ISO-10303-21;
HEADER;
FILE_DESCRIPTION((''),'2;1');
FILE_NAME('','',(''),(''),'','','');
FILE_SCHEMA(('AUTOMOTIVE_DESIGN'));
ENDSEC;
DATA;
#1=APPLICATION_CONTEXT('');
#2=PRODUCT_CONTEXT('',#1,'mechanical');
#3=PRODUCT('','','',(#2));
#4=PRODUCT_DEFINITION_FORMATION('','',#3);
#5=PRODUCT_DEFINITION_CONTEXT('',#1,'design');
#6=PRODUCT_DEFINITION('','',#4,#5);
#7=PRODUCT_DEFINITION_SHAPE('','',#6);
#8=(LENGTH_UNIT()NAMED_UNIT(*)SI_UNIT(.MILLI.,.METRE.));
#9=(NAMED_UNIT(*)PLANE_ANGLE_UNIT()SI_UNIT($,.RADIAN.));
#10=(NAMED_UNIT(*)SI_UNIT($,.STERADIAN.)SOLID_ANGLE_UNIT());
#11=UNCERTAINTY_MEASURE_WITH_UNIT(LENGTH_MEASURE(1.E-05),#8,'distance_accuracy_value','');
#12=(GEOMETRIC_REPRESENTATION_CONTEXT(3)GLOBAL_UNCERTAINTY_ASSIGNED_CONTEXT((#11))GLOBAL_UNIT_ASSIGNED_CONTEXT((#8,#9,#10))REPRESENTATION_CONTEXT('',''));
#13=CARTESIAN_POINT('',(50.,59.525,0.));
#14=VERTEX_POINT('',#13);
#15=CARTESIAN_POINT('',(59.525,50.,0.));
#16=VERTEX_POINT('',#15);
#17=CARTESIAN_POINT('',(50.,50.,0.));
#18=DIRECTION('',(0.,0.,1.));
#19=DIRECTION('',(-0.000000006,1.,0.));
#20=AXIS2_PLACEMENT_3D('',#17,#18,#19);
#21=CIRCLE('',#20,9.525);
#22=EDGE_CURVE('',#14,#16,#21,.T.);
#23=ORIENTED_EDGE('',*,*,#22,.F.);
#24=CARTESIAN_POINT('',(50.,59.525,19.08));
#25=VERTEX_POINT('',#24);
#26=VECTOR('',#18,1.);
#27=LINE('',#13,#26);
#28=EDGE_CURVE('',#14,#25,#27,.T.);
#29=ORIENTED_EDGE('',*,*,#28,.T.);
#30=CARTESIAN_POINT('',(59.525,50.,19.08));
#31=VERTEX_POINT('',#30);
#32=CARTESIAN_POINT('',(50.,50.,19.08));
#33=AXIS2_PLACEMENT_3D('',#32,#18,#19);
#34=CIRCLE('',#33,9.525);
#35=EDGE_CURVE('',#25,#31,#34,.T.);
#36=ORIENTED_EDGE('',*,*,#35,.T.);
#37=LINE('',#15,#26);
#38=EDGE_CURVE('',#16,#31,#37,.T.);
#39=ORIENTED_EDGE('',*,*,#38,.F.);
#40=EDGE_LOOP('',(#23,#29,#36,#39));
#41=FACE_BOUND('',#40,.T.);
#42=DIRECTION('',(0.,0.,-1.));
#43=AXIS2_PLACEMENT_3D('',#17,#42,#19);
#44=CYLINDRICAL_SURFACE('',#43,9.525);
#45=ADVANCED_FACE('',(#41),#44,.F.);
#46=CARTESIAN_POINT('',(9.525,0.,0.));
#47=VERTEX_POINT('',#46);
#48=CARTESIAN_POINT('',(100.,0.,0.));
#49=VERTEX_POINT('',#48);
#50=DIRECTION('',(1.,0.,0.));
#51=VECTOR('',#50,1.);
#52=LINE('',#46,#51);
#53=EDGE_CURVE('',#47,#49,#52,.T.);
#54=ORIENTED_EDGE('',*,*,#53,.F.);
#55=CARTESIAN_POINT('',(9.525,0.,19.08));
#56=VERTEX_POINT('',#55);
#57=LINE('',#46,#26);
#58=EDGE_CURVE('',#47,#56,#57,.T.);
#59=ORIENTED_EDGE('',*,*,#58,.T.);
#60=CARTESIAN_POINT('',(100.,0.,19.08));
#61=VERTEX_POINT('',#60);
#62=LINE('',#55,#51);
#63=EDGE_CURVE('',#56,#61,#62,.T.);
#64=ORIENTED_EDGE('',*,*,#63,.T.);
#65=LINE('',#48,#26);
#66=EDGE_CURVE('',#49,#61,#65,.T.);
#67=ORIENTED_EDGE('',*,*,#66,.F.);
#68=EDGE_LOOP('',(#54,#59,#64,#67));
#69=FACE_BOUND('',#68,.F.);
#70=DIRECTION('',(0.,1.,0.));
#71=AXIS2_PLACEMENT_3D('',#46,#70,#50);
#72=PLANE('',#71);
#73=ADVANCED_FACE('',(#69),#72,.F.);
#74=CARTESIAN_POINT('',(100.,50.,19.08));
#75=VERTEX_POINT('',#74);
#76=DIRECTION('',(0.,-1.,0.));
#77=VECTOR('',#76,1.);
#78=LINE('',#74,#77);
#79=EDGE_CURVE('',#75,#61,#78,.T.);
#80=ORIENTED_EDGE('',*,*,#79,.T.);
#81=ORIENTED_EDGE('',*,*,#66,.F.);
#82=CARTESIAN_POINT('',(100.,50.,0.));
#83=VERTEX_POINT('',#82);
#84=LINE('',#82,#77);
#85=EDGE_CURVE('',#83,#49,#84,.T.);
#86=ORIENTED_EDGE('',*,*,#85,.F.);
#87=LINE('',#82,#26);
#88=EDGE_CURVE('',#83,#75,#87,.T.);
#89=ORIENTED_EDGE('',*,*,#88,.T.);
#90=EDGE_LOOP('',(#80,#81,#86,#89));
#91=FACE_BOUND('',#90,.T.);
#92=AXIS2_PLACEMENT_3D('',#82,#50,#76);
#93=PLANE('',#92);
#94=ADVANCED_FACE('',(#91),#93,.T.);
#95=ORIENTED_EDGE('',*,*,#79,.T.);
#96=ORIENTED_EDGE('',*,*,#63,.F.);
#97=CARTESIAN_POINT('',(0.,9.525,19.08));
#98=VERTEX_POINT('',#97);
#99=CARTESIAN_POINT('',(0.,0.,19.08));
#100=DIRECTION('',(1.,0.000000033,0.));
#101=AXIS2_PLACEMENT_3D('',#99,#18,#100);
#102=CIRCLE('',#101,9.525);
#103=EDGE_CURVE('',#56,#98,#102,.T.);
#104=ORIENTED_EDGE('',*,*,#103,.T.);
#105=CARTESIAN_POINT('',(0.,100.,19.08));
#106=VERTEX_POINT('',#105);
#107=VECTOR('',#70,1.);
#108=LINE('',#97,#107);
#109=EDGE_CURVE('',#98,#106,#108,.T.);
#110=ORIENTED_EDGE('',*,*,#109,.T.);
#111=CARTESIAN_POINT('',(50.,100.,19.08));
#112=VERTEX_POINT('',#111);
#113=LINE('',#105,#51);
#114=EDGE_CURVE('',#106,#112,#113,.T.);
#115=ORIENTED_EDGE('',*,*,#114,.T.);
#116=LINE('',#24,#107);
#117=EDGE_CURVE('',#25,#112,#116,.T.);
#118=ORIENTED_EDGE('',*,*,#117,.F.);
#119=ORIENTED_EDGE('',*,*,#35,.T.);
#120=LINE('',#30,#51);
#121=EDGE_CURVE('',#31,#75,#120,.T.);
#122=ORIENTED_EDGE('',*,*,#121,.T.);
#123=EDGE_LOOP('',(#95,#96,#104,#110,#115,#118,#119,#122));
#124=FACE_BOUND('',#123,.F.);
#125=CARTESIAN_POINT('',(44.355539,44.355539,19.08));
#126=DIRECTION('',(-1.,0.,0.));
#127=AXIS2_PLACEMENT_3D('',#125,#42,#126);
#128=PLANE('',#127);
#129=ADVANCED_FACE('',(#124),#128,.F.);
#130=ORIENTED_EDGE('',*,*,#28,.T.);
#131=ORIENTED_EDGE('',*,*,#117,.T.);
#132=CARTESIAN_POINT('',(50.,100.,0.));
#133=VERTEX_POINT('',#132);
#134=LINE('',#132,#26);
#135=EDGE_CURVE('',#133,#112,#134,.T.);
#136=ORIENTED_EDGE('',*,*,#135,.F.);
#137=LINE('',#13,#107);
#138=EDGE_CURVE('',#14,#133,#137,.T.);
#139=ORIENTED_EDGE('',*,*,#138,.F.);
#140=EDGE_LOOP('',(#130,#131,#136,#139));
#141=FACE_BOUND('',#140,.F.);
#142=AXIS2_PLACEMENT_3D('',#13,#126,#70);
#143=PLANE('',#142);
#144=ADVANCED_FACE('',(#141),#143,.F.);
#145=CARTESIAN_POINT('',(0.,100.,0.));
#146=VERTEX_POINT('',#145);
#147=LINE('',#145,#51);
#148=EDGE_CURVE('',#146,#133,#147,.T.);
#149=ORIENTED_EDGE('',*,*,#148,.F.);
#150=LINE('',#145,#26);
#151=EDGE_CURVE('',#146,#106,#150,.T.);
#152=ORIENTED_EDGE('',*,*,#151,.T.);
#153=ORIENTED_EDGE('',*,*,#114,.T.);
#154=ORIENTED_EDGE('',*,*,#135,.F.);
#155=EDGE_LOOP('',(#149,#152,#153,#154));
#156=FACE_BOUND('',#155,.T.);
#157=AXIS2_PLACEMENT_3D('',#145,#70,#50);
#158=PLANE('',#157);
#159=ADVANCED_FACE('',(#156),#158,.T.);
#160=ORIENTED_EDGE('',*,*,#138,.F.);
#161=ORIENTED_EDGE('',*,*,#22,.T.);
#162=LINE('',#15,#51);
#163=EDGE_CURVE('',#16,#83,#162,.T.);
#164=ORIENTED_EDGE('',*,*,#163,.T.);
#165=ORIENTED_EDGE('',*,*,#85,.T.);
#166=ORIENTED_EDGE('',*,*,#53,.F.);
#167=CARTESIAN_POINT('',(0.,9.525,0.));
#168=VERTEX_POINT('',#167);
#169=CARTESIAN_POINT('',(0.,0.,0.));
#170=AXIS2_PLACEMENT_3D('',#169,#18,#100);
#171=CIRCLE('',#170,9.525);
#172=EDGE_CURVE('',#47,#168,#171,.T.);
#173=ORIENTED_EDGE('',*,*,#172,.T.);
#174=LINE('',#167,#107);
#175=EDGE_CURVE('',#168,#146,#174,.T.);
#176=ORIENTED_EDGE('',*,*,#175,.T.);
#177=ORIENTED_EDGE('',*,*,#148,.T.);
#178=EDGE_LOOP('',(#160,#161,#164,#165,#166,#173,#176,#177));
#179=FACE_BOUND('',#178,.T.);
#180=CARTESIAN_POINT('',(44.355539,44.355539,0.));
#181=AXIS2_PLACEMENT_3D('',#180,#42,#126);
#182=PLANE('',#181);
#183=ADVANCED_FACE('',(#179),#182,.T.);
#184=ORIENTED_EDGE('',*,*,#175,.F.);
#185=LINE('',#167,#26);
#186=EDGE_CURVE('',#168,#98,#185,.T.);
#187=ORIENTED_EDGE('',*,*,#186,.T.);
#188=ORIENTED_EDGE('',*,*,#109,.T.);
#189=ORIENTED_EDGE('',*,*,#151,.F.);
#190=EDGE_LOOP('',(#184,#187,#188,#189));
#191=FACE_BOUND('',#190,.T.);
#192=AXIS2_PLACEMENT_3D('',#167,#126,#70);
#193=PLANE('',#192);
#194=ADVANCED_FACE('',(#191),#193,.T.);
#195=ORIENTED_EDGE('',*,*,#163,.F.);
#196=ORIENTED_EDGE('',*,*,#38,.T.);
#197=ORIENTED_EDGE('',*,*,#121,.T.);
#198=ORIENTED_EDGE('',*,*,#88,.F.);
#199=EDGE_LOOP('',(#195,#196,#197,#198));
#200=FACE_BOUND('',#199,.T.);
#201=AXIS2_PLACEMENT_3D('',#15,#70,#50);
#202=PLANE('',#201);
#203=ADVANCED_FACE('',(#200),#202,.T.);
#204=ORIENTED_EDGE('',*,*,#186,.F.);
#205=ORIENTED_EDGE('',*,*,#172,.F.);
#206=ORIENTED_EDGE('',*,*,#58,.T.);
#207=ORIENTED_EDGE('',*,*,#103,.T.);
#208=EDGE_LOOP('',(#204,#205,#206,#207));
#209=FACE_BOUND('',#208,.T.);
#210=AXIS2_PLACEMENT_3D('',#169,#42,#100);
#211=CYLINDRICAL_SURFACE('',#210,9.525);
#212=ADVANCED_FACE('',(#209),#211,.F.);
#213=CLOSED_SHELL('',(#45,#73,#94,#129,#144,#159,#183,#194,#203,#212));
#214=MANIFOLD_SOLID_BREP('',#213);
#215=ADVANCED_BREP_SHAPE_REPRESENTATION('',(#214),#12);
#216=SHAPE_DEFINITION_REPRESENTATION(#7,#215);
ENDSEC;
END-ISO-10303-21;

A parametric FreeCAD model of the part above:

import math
import FreeCAD as App
import Part
import Sketcher
from FreeCAD import Vector
Q = App.Units.Quantity

doc = App.newDocument("Part")
params = doc.addObject("Spreadsheet::Sheet", "Params")
for row, (alias, value) in enumerate([
    ("sketch1_radius", "0.375 in"),
    ("pad1_length", "19.08 mm"),
], start=1):
    params.set(f"A{row}", alias)
    params.set(f"B{row}", "=" + value)
    params.setAlias(f"B{row}", alias)

body = doc.addObject("PartDesign::Body", "Body")

# Sketch on XY plane
sketch1 = body.newObject("Sketcher::SketchObject", "Sketch")
sketch1.AttachmentSupport = (doc.getObject("XY_Plane"), [""])
sketch1.MapMode = "FlatFace"
sketch1.addGeometry(Part.LineSegment(Vector(50, 100, 0), Vector(0, 100, 0)), False)
sketch1.addGeometry(Part.LineSegment(Vector(0, 100, 0), Vector(0, 10, 0)), False)
sketch1.addGeometry(Part.ArcOfCircle(Part.Circle(Vector(0, 0, 0), Vector(0, 0, 1), 10), math.radians(0), math.radians(90)), False)
sketch1.addGeometry(Part.LineSegment(Vector(10, 0, 0), Vector(100, 0, 0)), False)
sketch1.addGeometry(Part.LineSegment(Vector(100, 0, 0), Vector(100, 50, 0)), False)
sketch1.addGeometry(Part.LineSegment(Vector(100, 50, 0), Vector(60, 50, 0)), False)
sketch1.addGeometry(Part.ArcOfCircle(Part.Circle(Vector(50, 50, 0), Vector(0, 0, 1), 10), math.radians(90), math.radians(360)), False)
sketch1.addGeometry(Part.LineSegment(Vector(50, 60, 0), Vector(50, 100, 0)), False)
sketch1.addConstraint(Sketcher.Constraint("Coincident", 0, 2, 1, 1))
sketch1.addConstraint(Sketcher.Constraint("Coincident", 1, 2, 2, 2))
sketch1.addConstraint(Sketcher.Constraint("Coincident", 2, 1, 3, 1))
sketch1.addConstraint(Sketcher.Constraint("Coincident", 3, 2, 4, 1))
sketch1.addConstraint(Sketcher.Constraint("Coincident", 4, 2, 5, 1))
sketch1.addConstraint(Sketcher.Constraint("Coincident", 5, 2, 6, 2))
sketch1.addConstraint(Sketcher.Constraint("Coincident", 6, 1, 7, 1))
sketch1.addConstraint(Sketcher.Constraint("Coincident", 7, 2, 0, 1))
sketch1.addConstraint(Sketcher.Constraint("Horizontal", 0))
sketch1.addConstraint(Sketcher.Constraint("Vertical", 1))
sketch1.addConstraint(Sketcher.Constraint("Horizontal", 3))
sketch1.addConstraint(Sketcher.Constraint("Vertical", 4))
sketch1.addConstraint(Sketcher.Constraint("Horizontal", 5))
sketch1.addConstraint(Sketcher.Constraint("Vertical", 7))
sketch1.addConstraint(Sketcher.Constraint("Coincident", 2, 3, -1, 1))
sketch1.addConstraint(Sketcher.Constraint("Equal", 2, 6))
sketch1.addConstraint(Sketcher.Constraint("PointOnObject", 0, 2, -2))
sketch1.addConstraint(Sketcher.Constraint("PointOnObject", 2, 1, -1))
sketch1.addConstraint(Sketcher.Constraint("Horizontal", 6, 3, 4, 2))
sketch1.addConstraint(Sketcher.Constraint("Equal", 3, 1))
sketch1.addConstraint(Sketcher.Constraint("Equal", 0, 4))
sketch1.addConstraint(Sketcher.Constraint("Equal", 5, 7))
sketch1.addConstraint(Sketcher.Constraint("Radius", 2, Q("0.375 in")))
sketch1.addConstraint(Sketcher.Constraint("DistanceX", 0, 2, 0, 1, 50.0))
sketch1.addConstraint(Sketcher.Constraint("DistanceX", 3, 1, 3, 2, 90.475))
sketch1.setExpression("Constraints[22]", "Params.sketch1_radius")
pad1 = body.newObject("PartDesign::Pad", "Pad")
pad1.Profile = sketch1
pad1.setExpression("Length", "Params.pad1_length")

doc.recompute()
